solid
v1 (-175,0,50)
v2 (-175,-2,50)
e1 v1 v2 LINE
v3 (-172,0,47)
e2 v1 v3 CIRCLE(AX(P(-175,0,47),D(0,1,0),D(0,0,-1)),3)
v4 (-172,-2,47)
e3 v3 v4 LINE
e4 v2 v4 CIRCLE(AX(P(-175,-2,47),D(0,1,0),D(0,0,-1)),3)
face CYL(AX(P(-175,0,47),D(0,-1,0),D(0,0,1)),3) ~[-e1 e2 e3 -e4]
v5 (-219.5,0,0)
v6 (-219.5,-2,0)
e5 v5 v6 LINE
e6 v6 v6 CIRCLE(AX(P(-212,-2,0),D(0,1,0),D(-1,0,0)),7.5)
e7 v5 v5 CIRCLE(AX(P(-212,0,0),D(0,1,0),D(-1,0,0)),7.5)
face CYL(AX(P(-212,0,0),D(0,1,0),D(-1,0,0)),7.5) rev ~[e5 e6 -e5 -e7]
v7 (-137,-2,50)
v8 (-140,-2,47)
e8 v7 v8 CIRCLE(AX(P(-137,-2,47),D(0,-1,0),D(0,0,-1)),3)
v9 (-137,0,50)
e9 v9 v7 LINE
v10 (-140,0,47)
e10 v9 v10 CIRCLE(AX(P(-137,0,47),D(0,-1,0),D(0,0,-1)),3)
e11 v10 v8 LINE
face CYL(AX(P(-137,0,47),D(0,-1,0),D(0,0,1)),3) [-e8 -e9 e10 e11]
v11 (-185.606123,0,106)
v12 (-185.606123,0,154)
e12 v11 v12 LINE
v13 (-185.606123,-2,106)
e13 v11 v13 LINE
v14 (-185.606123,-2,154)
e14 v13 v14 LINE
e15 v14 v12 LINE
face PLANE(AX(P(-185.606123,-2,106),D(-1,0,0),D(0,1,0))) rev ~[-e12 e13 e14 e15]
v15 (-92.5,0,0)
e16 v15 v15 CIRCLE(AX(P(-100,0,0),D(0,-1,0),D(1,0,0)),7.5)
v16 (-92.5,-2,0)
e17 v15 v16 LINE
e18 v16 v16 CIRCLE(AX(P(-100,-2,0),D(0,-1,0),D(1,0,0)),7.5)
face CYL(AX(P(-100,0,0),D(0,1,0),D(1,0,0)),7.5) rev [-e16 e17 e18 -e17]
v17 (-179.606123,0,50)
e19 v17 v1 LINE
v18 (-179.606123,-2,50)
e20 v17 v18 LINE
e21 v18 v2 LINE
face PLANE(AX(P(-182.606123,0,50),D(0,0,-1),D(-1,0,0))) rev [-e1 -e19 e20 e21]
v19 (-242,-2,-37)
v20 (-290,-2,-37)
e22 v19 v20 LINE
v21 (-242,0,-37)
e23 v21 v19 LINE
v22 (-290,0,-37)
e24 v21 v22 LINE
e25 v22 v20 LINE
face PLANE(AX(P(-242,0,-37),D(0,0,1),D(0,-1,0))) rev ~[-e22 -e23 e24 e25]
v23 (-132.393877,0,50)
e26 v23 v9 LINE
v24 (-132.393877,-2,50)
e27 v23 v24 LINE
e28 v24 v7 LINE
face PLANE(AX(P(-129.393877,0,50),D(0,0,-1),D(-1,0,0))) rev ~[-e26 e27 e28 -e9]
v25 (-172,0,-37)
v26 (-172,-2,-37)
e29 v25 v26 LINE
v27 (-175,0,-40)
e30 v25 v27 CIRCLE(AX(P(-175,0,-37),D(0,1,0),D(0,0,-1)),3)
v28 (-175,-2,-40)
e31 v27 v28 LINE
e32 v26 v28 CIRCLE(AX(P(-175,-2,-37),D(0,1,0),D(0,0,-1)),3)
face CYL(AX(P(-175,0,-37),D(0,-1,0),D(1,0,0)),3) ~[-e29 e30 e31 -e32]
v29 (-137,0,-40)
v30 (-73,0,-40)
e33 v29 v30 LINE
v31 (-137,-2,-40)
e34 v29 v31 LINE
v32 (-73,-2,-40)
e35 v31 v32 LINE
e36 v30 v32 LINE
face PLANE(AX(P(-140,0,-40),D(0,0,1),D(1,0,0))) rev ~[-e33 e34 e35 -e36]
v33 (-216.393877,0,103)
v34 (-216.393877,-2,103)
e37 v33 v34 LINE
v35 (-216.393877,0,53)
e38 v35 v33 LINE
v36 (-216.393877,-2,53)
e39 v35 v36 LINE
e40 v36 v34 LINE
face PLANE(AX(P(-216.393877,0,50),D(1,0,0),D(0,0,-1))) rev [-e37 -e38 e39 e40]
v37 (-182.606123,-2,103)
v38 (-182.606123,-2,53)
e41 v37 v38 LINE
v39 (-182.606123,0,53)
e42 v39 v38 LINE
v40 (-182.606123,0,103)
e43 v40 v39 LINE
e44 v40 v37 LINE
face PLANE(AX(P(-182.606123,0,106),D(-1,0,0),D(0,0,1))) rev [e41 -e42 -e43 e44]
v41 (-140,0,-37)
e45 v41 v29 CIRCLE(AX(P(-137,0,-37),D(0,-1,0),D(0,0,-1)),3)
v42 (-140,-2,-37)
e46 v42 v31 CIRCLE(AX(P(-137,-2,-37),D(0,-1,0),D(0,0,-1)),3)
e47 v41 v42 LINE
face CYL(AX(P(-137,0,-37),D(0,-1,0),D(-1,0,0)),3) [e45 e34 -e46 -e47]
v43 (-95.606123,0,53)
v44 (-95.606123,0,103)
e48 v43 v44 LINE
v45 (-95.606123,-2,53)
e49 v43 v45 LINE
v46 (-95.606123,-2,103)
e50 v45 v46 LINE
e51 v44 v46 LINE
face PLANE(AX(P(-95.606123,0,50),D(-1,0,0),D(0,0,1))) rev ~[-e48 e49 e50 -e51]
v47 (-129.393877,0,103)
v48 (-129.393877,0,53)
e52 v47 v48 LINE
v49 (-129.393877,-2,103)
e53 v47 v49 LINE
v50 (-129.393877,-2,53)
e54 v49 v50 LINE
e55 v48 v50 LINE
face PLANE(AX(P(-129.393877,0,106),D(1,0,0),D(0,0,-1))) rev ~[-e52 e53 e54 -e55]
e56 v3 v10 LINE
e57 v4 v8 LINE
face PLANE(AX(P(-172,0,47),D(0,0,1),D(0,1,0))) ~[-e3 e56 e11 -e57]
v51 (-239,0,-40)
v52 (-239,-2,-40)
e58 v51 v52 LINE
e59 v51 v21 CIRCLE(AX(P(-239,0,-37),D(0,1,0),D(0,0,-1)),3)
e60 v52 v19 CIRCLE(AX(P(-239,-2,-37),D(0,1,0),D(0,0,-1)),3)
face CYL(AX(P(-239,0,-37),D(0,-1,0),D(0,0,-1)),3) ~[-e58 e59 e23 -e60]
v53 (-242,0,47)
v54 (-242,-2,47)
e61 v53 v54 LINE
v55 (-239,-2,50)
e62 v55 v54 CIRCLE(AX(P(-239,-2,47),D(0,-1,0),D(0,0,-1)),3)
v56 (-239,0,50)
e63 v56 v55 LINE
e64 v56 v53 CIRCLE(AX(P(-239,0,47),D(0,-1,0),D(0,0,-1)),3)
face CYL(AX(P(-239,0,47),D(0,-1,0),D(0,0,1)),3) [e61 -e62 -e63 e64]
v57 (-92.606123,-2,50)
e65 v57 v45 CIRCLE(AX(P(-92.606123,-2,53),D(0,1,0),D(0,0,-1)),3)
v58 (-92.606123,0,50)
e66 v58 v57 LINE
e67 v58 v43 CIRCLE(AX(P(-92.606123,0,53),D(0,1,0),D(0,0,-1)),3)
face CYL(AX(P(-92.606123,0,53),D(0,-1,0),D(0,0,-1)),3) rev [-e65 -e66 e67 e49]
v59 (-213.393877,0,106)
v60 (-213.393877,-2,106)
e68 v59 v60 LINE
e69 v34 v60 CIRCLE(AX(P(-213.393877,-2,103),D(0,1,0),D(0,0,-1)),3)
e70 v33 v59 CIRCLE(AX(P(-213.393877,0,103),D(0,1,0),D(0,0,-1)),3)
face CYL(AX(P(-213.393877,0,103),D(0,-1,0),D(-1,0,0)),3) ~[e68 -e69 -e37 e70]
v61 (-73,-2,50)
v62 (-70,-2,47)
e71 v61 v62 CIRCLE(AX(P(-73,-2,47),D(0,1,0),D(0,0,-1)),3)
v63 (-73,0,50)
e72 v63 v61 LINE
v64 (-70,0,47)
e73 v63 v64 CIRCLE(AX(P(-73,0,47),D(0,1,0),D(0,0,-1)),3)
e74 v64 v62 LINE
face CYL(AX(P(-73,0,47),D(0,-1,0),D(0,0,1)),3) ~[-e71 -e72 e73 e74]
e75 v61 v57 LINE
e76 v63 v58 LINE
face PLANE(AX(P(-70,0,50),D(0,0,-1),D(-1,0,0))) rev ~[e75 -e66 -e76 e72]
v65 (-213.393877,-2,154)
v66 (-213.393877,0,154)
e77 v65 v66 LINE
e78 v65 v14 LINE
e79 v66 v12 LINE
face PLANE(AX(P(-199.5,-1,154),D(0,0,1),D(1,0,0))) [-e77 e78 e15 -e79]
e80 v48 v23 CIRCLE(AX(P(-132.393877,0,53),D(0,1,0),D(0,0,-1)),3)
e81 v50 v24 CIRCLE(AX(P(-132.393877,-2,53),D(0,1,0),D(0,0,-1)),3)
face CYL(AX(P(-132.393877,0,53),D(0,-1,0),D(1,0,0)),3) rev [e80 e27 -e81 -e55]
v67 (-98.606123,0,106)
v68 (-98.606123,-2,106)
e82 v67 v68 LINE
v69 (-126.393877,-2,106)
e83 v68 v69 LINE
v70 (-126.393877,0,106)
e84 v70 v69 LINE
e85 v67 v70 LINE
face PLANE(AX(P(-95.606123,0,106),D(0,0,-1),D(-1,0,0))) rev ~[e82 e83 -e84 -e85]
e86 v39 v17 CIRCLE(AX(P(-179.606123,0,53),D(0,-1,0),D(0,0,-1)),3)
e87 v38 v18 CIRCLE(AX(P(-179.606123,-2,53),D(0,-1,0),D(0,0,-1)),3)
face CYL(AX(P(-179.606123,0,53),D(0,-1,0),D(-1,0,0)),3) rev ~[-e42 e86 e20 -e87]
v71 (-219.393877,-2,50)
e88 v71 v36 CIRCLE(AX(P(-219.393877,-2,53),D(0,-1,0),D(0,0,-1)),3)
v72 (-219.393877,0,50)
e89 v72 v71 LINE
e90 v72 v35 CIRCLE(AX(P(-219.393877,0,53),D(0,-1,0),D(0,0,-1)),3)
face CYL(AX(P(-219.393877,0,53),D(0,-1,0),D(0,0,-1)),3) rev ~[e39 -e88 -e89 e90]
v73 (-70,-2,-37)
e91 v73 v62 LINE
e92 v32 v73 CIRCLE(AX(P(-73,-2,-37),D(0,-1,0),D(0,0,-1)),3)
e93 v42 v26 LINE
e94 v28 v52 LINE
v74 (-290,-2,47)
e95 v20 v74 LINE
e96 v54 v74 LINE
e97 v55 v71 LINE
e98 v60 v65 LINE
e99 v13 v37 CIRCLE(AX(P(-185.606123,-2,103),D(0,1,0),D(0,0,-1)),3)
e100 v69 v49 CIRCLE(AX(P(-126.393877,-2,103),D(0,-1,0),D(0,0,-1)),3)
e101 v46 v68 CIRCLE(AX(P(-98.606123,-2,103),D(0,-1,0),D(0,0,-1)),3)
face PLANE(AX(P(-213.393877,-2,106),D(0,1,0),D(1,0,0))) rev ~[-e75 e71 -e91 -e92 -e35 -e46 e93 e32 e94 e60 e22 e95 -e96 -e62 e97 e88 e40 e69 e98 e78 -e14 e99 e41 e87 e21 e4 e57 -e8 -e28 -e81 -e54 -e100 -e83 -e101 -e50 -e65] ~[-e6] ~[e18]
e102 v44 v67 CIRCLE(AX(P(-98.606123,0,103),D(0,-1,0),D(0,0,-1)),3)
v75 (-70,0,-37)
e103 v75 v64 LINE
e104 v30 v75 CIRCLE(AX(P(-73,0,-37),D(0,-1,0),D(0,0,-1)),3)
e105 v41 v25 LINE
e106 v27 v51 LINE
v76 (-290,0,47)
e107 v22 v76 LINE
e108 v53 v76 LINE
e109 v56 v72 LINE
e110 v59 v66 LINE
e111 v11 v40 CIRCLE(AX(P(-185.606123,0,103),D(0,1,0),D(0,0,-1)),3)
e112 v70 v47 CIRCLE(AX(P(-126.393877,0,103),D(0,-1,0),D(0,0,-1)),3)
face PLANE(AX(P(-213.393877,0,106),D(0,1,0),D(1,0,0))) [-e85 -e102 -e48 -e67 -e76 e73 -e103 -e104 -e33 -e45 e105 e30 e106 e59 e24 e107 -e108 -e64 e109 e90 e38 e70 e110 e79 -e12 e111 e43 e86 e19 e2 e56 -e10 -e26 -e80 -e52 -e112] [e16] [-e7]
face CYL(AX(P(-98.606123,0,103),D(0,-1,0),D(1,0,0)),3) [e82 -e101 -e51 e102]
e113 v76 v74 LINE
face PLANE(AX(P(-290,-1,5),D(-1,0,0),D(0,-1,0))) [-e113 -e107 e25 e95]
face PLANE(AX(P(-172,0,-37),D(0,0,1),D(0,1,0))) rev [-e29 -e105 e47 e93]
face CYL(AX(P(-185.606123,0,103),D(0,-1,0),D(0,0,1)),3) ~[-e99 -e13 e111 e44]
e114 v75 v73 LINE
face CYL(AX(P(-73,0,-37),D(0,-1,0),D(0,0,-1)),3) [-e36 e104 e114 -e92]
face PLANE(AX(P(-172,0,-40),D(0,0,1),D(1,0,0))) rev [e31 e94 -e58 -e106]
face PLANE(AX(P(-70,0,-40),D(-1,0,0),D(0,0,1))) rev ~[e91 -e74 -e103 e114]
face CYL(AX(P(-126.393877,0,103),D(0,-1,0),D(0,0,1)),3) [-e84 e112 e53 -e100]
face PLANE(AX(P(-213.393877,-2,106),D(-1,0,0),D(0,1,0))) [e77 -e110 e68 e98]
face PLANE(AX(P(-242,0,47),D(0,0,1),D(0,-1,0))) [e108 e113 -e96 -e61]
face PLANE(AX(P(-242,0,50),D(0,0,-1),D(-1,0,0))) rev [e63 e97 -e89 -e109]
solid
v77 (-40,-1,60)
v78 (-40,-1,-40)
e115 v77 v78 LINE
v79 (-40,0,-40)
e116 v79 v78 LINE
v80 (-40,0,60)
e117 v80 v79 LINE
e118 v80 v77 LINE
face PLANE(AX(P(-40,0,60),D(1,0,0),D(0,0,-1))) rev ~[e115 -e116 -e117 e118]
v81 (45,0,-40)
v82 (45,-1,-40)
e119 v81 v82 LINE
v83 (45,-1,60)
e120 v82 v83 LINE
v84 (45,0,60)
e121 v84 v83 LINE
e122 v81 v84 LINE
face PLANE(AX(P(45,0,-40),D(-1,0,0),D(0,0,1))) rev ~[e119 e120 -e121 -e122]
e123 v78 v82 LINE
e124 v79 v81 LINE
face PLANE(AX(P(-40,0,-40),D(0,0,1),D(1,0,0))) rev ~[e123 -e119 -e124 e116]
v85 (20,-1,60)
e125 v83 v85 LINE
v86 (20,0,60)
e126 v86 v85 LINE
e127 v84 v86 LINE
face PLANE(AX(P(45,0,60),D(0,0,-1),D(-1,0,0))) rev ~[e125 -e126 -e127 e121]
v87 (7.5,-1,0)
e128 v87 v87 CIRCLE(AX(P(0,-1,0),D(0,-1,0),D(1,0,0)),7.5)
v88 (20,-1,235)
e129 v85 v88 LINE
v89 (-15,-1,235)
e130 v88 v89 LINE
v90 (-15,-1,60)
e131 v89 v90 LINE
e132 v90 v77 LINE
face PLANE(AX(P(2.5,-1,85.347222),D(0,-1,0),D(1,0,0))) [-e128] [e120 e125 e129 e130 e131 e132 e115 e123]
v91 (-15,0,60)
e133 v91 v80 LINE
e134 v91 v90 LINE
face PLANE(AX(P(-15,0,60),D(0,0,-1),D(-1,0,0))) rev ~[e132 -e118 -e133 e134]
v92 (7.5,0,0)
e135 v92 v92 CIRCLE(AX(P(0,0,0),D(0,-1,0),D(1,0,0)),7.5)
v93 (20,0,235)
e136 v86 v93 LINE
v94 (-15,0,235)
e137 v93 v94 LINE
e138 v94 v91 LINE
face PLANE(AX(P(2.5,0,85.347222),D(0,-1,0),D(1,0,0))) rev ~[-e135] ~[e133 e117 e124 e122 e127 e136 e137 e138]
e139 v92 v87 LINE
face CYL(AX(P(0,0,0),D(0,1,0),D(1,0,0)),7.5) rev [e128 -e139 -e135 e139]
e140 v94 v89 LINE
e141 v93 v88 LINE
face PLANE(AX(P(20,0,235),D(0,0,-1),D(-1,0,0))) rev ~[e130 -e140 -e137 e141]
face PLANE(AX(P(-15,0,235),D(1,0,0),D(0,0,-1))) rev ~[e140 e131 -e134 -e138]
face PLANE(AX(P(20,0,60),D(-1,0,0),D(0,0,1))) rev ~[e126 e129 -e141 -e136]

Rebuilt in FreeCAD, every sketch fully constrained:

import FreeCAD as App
import Part
import Sketcher
from FreeCAD import Vector


def edges_at(feature, points):
    """Names of the edges that pass closest to the given points."""
    edges = feature.Shape.Edges
    near = lambda p: min(range(len(edges)), key=lambda i: edges[i].distToShape(Part.Vertex(*p))[0])
    return sorted({f"Edge{near(p) + 1}" for p in points})

doc = App.newDocument("Part")
body = doc.addObject("PartDesign::Body", "Body")

sketch1 = doc.addObject("Sketcher::SketchObject", "Sketch")
body.addObject(sketch1)
sketch1.AttachmentSupport = (doc.XZ_Plane, [""])
sketch1.MapMode = "FlatFace"
sketch1.addGeometry([
    Part.LineSegment(Vector(45, 60, 0), Vector(20, 60, 0)),
    Part.LineSegment(Vector(20, 60, 0), Vector(20, 235, 0)),
    Part.LineSegment(Vector(20, 235, 0), Vector(-15, 235, 0)),
    Part.LineSegment(Vector(-15, 235, 0), Vector(-15, 60, 0)),
    Part.LineSegment(Vector(-15, 60, 0), Vector(-40, 60, 0)),
    Part.LineSegment(Vector(-40, 60, 0), Vector(-40, -40, 0)),
    Part.LineSegment(Vector(-40, -40, 0), Vector(45, -40, 0)),
    Part.LineSegment(Vector(45, -40, 0), Vector(45, 60, 0)),
    Part.Circle(Vector(0, 0, 0), Vector(0, 0, 1), 8),
], False)
sketch1.addConstraint([
    Sketcher.Constraint("Coincident", 0, 2, 1, 1),
    Sketcher.Constraint("Coincident", 1, 2, 2, 1),
    Sketcher.Constraint("Coincident", 2, 2, 3, 1),
    Sketcher.Constraint("Coincident", 3, 2, 4, 1),
    Sketcher.Constraint("Coincident", 4, 2, 5, 1),
    Sketcher.Constraint("Coincident", 5, 2, 6, 1),
    Sketcher.Constraint("Coincident", 6, 2, 7, 1),
    Sketcher.Constraint("Coincident", 7, 2, 0, 1),
    Sketcher.Constraint("Horizontal", 0),
    Sketcher.Constraint("Vertical", 1),
    Sketcher.Constraint("Horizontal", 2),
    Sketcher.Constraint("Vertical", 3),
    Sketcher.Constraint("Horizontal", 4),
    Sketcher.Constraint("Vertical", 5),
    Sketcher.Constraint("Horizontal", 6),
    Sketcher.Constraint("Vertical", 7),
    Sketcher.Constraint("Coincident", 8, 3, -1, 1),
    Sketcher.Constraint("Horizontal", 0, 2, 3, 2),
    Sketcher.Constraint("Equal", 0, 4),
    Sketcher.Constraint("Diameter", 8, 15.0),
    Sketcher.Constraint("DistanceX", 0, 2, 0, 1, 25.0),
    Sketcher.Constraint("DistanceX", 2, 2, 2, 1, 35.0),
    Sketcher.Constraint("DistanceY", 1, 1, 1, 2, 175.0),
    Sketcher.Constraint("DistanceY", 5, 2, 5, 1, 100.0),
    Sketcher.Constraint("DistanceX", -1, 1, 0, 2, 20.0),
    Sketcher.Constraint("DistanceY", -1, 1, 0, 2, 60.0),
])
pad1 = doc.addObject("PartDesign::Pad", "Pad")
body.addObject(pad1)
pad1.Profile = sketch1
pad1.Length = 1
body2 = doc.addObject("PartDesign::Body", "Body001")

sketch2 = doc.addObject("Sketcher::SketchObject", "Sketch001")
body2.addObject(sketch2)
sketch2.AttachmentSupport = (doc.getObject("XZ_Plane001"), [""])
sketch2.MapMode = "FlatFace"
sketch2.addGeometry([
    Part.LineSegment(Vector(-70, 50, 0), Vector(-96, 50, 0)),
    Part.LineSegment(Vector(-96, 50, 0), Vector(-96, 106, 0)),
    Part.LineSegment(Vector(-96, 106, 0), Vector(-129, 106, 0)),
    Part.LineSegment(Vector(-129, 106, 0), Vector(-129, 50, 0)),
    Part.LineSegment(Vector(-129, 50, 0), Vector(-140, 50, 0)),
    Part.LineSegment(Vector(-140, 50, 0), Vector(-140, -40, 0)),
    Part.LineSegment(Vector(-140, -40, 0), Vector(-70, -40, 0)),
    Part.LineSegment(Vector(-70, -40, 0), Vector(-70, 50, 0)),
    Part.Circle(Vector(-100, 0, 0), Vector(0, 0, 1), 8),
], False)
sketch2.addConstraint([
    Sketcher.Constraint("Coincident", 0, 2, 1, 1),
    Sketcher.Constraint("Coincident", 1, 2, 2, 1),
    Sketcher.Constraint("Coincident", 2, 2, 3, 1),
    Sketcher.Constraint("Coincident", 3, 2, 4, 1),
    Sketcher.Constraint("Coincident", 4, 2, 5, 1),
    Sketcher.Constraint("Coincident", 5, 2, 6, 1),
    Sketcher.Constraint("Coincident", 6, 2, 7, 1),
    Sketcher.Constraint("Coincident", 7, 2, 0, 1),
    Sketcher.Constraint("Horizontal", 0),
    Sketcher.Constraint("Vertical", 1),
    Sketcher.Constraint("Horizontal", 2),
    Sketcher.Constraint("Vertical", 3),
    Sketcher.Constraint("Horizontal", 4),
    Sketcher.Constraint("Vertical", 5),
    Sketcher.Constraint("Horizontal", 6),
    Sketcher.Constraint("Vertical", 7),
    Sketcher.Constraint("PointOnObject", 8, 3, -1),
    Sketcher.Constraint("Horizontal", 0, 2, 3, 2),
    Sketcher.Constraint("Diameter", 8, 15.0),
    Sketcher.Constraint("DistanceX", 6, 1, 6, 2, 70.0),
    Sketcher.Constraint("DistanceY", 1, 1, 1, 2, 56.0),
    Sketcher.Constraint("DistanceY", 5, 2, 5, 1, 90.0),
    Sketcher.Constraint("DistanceX", 8, 3, -1, 1, 100.0),
    Sketcher.Constraint("DistanceY", -1, 1, 0, 2, 50.0),
    Sketcher.Constraint("DistanceX", 4, 2, -1, 1, 140.0),
    Sketcher.Constraint("DistanceX", 0, 2, 0, 1, 25.606123),
    Sketcher.Constraint("DistanceX", 2, 2, 2, 1, 33.787754),
])
pad2 = doc.addObject("PartDesign::Pad", "Pad001")
body2.addObject(pad2)
pad2.Profile = sketch2
pad2.Length = 2
doc.recompute()

fillet = doc.addObject("PartDesign::Fillet", "Fillet")
body2.addObject(fillet)
fillet.Base = (pad2, edges_at(pad2, [
    (-129.394, -1, 50),
    (-129.394, -1, 106),
    (-95.606, -1, 106),
    (-95.606, -1, 50),
    (-70, -1, 50),
    (-140, -1, 50),
    (-140, -1, -40),
    (-70, -1, -40),
]))
fillet.Radius = 3

sketch3 = doc.addObject("Sketcher::SketchObject", "Sketch002")
body2.addObject(sketch3)
sketch3.AttachmentSupport = (doc.getObject("YZ_Plane001"), [""])
sketch3.MapMode = "FlatFace"
sketch3.AttachmentOffset = App.Placement(Vector(0, 0, -140), App.Rotation())
sketch3.addGeometry([
    Part.LineSegment(Vector(0, 47, 0), Vector(0, -37, 0)),
    Part.LineSegment(Vector(0, -37, 0), Vector(-2, -37, 0)),
    Part.LineSegment(Vector(-2, -37, 0), Vector(-2, 47, 0)),
    Part.LineSegment(Vector(-2, 47, 0), Vector(0, 47, 0)),
], False)
sketch3.addConstraint([
    Sketcher.Constraint("Coincident", 0, 2, 1, 1),
    Sketcher.Constraint("Coincident", 1, 2, 2, 1),
    Sketcher.Constraint("Coincident", 2, 2, 3, 1),
    Sketcher.Constraint("Coincident", 3, 2, 0, 1),
    Sketcher.Constraint("Vertical", 0),
    Sketcher.Constraint("Horizontal", 1),
    Sketcher.Constraint("Vertical", 2),
    Sketcher.Constraint("Horizontal", 3),
    Sketcher.Constraint("PointOnObject", 0, 2, -2),
    Sketcher.Constraint("DistanceX", 1, 2, 1, 1, 2.0),
    Sketcher.Constraint("DistanceY", 0, 2, 0, 1, 84.0),
    Sketcher.Constraint("DistanceY", 0, 2, -1, 1, 37.0),
])
pad3 = doc.addObject("PartDesign::Pad", "Pad002")
body2.addObject(pad3)
pad3.Profile = sketch3
pad3.Length = 16
pad3.Reversed = True
body3 = doc.addObject("PartDesign::Body", "Body002")
doc.recompute()

body3.BaseFeature = body2
doc.recompute()

mirroring = doc.addObject("Part::Mirroring", "Mirroring")
mirroring.Source = body2
mirroring.Base = Vector(-156, -1, 5)
mirroring.Normal = Vector(-1, 0, 0)
body4 = doc.addObject("PartDesign::Body", "Body003")
body4.BaseFeature = mirroring
boolean = doc.addObject("PartDesign::Boolean", "Boolean")
body3.addObject(boolean)
boolean.Type = "Fuse"
boolean.addObjects([body4])
doc.recompute()

sketch4 = doc.addObject("Sketcher::SketchObject", "Sketch003")
body3.addObject(sketch4)
sketch4.AttachmentSupport = (doc.getObject("YZ_Plane002"), [""])
sketch4.MapMode = "FlatFace"
sketch4.AttachmentOffset = App.Placement(Vector(0, 0, -242), App.Rotation())
sketch4.addGeometry([
    Part.LineSegment(Vector(0, 47, 0), Vector(0, -37, 0)),
    Part.LineSegment(Vector(0, -37, 0), Vector(-2, -37, 0)),
    Part.LineSegment(Vector(-2, -37, 0), Vector(-2, 47, 0)),
    Part.LineSegment(Vector(-2, 47, 0), Vector(0, 47, 0)),
], False)
sketch4.addConstraint([
    Sketcher.Constraint("Coincident", 0, 2, 1, 1),
    Sketcher.Constraint("Coincident", 1, 2, 2, 1),
    Sketcher.Constraint("Coincident", 2, 2, 3, 1),
    Sketcher.Constraint("Coincident", 3, 2, 0, 1),
    Sketcher.Constraint("Vertical", 0),
    Sketcher.Constraint("Horizontal", 1),
    Sketcher.Constraint("Vertical", 2),
    Sketcher.Constraint("Horizontal", 3),
    Sketcher.Constraint("PointOnObject", 0, 2, -2),
    Sketcher.Constraint("DistanceX", 1, 2, 1, 1, 2.0),
    Sketcher.Constraint("DistanceY", 0, 2, 0, 1, 84.0),
    Sketcher.Constraint("DistanceY", 0, 2, -1, 1, 37.0),
])
pad4 = doc.addObject("PartDesign::Pad", "Pad003")
body3.addObject(pad4)
pad4.Profile = sketch4
pad4.Length = 48
pad4.Reversed = True

sketch5 = doc.addObject("Sketcher::SketchObject", "Sketch004")
body3.addObject(sketch5)
sketch5.AttachmentSupport = (doc.getObject("XY_Plane002"), [""])
sketch5.MapMode = "FlatFace"
sketch5.AttachmentOffset = App.Placement(Vector(0, 0, 106), App.Rotation())
sketch5.addGeometry([
    Part.LineSegment(Vector(-213.4, 0, 0), Vector(-213.4, -2, 0)),
    Part.LineSegment(Vector(-213.4, -2, 0), Vector(-185.6, -2, 0)),
    Part.LineSegment(Vector(-185.6, -2, 0), Vector(-185.6, 0, 0)),
    Part.LineSegment(Vector(-185.6, 0, 0), Vector(-213.4, 0, 0)),
], False)
sketch5.addConstraint([
    Sketcher.Constraint("Coincident", 0, 2, 1, 1),
    Sketcher.Constraint("Coincident", 1, 2, 2, 1),
    Sketcher.Constraint("Coincident", 2, 2, 3, 1),
    Sketcher.Constraint("Coincident", 3, 2, 0, 1),
    Sketcher.Constraint("Vertical", 0),
    Sketcher.Constraint("Horizontal", 1),
    Sketcher.Constraint("Vertical", 2),
    Sketcher.Constraint("Horizontal", 3),
    Sketcher.Constraint("PointOnObject", 2, 2, -1),
    Sketcher.Constraint("DistanceY", 0, 2, 0, 1, 2.0),
    Sketcher.Constraint("DistanceX", 1, 1, 1, 2, 27.787754),
    Sketcher.Constraint("DistanceX", 0, 2, -1, 1, 213.393877),
])
pad5 = doc.addObject("PartDesign::Pad", "Pad004")
body3.addObject(pad5)
pad5.Profile = sketch5
pad5.Length = 48
mirroring.Visibility = False

doc.recompute()
